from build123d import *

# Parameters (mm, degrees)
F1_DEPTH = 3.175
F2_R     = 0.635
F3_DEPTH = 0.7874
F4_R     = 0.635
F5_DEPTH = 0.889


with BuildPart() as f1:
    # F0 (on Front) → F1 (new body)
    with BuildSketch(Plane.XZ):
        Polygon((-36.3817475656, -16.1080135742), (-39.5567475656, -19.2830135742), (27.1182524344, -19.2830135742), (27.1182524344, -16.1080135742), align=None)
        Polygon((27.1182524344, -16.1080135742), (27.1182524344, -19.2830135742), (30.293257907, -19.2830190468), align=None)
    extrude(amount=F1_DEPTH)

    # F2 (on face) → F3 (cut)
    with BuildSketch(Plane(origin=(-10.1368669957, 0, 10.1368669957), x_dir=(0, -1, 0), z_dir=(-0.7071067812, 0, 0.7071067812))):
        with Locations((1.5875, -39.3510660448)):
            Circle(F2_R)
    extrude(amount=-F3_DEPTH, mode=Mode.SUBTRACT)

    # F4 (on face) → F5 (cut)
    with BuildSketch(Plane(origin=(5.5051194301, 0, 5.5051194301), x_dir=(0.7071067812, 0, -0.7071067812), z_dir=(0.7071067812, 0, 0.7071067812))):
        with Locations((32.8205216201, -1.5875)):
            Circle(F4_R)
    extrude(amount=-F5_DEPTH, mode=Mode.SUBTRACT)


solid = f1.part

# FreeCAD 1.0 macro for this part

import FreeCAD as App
import Part
import Sketcher
from FreeCAD import Vector
Q = App.Units.Quantity


def add_polygon(sketch, points):
    """Adds a closed chain of lines whose ends are joined by coincident constraints."""
    first, n = sketch.GeometryCount, len(points)
    for a, b in zip(points, points[1:] + points[:1]):
        sketch.addGeometry(Part.LineSegment(App.Vector(*a, 0), App.Vector(*b, 0)), False)
    for i in range(n):
        sketch.addConstraint(Sketcher.Constraint("Coincident", first + i, 2, first + (i + 1) % n, 1))

doc = App.newDocument("Part")
body = doc.addObject("PartDesign::Body", "Body")

# Sketch on XZ plane
sketch1 = body.newObject("Sketcher::SketchObject", "Sketch")
sketch1.AttachmentSupport = (doc.getObject("XZ_Plane"), [""])
sketch1.MapMode = "FlatFace"
add_polygon(sketch1, [(-36.4, -16.1), (-39.6, -19.3), (27.1, -19.3), (30.3, -19.3), (27.1, -16.1)])  # lines 0-4
sketch1.addConstraint(Sketcher.Constraint("Horizontal", 1))
sketch1.addConstraint(Sketcher.Constraint("Horizontal", 4))
sketch1.addConstraint(Sketcher.Constraint("Perpendicular", 0, 3))
sketch1.addConstraint(Sketcher.Constraint("Vertical", 1, 2, 3, 2))
sketch1.addConstraint(Sketcher.Constraint("DistanceX", 4, 2, 4, 1, Q("2.5 in")))
sketch1.addConstraint(Sketcher.Constraint("Angle", 0, Q("-135 deg")))
sketch1.addConstraint(Sketcher.Constraint("DistanceX", 1, 1, 1, 2, Q("2.625 in")))
sketch1.addConstraint(Sketcher.Constraint("DistanceY", 2, 2, -1, 1, 19.283019))
sketch1.addConstraint(Sketcher.Constraint("Distance", 2, 3.175005))
sketch1.addConstraint(Sketcher.Constraint("DistanceX", 0, 2, -1, 1, 39.556748))
pad1 = body.newObject("PartDesign::Pad", "Pad")
pad1.Profile = sketch1
pad1.Length = Q("0.125 in")

# Sketch on an angled plane
sketch2 = body.newObject("Sketcher::SketchObject", "Sketch001")
sketch2.Placement = App.Placement(Vector(-10.136867, 0, 10.136867), App.Rotation(Vector(0, -1, 0), Vector(0.707106781, 0, 0.707106781), Vector(-0.707106781, 0, 0.707106781), "ZXY"))
sketch2.addGeometry(Part.Circle(Vector(1.6, -39.4, 0), Vector(0, 0, 1), 0.6), False)
sketch2.addConstraint(Sketcher.Constraint("Diameter", 0, Q("0.05 in")))
sketch2.addConstraint(Sketcher.Constraint("DistanceX", -1, 1, 0, 3, Q("0.0625 in")))
sketch2.addConstraint(Sketcher.Constraint("DistanceY", 0, 3, -1, 1, 39.351066))
pocket1 = body.newObject("PartDesign::Pocket", "Pocket")
pocket1.Profile = sketch2
pocket1.Length = Q("0.031 in")

# Sketch on an angled plane
sketch3 = body.newObject("Sketcher::SketchObject", "Sketch002")
sketch3.Placement = App.Placement(Vector(5.505119, 0, 5.505119), App.Rotation(Vector(0.707106781, 0, -0.707106781), Vector(0, 0.999999999, 0), Vector(0.707106781, 0, 0.707106781), "ZXY"))
sketch3.addGeometry(Part.Circle(Vector(32.8, -1.6, 0), Vector(0, 0, 1), 0.6), False)
sketch3.addConstraint(Sketcher.Constraint("Diameter", 0, Q("0.05 in")))
sketch3.addConstraint(Sketcher.Constraint("DistanceY", 0, 3, -1, 1, Q("0.0625 in")))
sketch3.addConstraint(Sketcher.Constraint("DistanceX", -1, 1, 0, 3, 32.820522))
pocket2 = body.newObject("PartDesign::Pocket", "Pocket001")
pocket2.Profile = sketch3
pocket2.Length = Q("0.035 in")

doc.recompute()
